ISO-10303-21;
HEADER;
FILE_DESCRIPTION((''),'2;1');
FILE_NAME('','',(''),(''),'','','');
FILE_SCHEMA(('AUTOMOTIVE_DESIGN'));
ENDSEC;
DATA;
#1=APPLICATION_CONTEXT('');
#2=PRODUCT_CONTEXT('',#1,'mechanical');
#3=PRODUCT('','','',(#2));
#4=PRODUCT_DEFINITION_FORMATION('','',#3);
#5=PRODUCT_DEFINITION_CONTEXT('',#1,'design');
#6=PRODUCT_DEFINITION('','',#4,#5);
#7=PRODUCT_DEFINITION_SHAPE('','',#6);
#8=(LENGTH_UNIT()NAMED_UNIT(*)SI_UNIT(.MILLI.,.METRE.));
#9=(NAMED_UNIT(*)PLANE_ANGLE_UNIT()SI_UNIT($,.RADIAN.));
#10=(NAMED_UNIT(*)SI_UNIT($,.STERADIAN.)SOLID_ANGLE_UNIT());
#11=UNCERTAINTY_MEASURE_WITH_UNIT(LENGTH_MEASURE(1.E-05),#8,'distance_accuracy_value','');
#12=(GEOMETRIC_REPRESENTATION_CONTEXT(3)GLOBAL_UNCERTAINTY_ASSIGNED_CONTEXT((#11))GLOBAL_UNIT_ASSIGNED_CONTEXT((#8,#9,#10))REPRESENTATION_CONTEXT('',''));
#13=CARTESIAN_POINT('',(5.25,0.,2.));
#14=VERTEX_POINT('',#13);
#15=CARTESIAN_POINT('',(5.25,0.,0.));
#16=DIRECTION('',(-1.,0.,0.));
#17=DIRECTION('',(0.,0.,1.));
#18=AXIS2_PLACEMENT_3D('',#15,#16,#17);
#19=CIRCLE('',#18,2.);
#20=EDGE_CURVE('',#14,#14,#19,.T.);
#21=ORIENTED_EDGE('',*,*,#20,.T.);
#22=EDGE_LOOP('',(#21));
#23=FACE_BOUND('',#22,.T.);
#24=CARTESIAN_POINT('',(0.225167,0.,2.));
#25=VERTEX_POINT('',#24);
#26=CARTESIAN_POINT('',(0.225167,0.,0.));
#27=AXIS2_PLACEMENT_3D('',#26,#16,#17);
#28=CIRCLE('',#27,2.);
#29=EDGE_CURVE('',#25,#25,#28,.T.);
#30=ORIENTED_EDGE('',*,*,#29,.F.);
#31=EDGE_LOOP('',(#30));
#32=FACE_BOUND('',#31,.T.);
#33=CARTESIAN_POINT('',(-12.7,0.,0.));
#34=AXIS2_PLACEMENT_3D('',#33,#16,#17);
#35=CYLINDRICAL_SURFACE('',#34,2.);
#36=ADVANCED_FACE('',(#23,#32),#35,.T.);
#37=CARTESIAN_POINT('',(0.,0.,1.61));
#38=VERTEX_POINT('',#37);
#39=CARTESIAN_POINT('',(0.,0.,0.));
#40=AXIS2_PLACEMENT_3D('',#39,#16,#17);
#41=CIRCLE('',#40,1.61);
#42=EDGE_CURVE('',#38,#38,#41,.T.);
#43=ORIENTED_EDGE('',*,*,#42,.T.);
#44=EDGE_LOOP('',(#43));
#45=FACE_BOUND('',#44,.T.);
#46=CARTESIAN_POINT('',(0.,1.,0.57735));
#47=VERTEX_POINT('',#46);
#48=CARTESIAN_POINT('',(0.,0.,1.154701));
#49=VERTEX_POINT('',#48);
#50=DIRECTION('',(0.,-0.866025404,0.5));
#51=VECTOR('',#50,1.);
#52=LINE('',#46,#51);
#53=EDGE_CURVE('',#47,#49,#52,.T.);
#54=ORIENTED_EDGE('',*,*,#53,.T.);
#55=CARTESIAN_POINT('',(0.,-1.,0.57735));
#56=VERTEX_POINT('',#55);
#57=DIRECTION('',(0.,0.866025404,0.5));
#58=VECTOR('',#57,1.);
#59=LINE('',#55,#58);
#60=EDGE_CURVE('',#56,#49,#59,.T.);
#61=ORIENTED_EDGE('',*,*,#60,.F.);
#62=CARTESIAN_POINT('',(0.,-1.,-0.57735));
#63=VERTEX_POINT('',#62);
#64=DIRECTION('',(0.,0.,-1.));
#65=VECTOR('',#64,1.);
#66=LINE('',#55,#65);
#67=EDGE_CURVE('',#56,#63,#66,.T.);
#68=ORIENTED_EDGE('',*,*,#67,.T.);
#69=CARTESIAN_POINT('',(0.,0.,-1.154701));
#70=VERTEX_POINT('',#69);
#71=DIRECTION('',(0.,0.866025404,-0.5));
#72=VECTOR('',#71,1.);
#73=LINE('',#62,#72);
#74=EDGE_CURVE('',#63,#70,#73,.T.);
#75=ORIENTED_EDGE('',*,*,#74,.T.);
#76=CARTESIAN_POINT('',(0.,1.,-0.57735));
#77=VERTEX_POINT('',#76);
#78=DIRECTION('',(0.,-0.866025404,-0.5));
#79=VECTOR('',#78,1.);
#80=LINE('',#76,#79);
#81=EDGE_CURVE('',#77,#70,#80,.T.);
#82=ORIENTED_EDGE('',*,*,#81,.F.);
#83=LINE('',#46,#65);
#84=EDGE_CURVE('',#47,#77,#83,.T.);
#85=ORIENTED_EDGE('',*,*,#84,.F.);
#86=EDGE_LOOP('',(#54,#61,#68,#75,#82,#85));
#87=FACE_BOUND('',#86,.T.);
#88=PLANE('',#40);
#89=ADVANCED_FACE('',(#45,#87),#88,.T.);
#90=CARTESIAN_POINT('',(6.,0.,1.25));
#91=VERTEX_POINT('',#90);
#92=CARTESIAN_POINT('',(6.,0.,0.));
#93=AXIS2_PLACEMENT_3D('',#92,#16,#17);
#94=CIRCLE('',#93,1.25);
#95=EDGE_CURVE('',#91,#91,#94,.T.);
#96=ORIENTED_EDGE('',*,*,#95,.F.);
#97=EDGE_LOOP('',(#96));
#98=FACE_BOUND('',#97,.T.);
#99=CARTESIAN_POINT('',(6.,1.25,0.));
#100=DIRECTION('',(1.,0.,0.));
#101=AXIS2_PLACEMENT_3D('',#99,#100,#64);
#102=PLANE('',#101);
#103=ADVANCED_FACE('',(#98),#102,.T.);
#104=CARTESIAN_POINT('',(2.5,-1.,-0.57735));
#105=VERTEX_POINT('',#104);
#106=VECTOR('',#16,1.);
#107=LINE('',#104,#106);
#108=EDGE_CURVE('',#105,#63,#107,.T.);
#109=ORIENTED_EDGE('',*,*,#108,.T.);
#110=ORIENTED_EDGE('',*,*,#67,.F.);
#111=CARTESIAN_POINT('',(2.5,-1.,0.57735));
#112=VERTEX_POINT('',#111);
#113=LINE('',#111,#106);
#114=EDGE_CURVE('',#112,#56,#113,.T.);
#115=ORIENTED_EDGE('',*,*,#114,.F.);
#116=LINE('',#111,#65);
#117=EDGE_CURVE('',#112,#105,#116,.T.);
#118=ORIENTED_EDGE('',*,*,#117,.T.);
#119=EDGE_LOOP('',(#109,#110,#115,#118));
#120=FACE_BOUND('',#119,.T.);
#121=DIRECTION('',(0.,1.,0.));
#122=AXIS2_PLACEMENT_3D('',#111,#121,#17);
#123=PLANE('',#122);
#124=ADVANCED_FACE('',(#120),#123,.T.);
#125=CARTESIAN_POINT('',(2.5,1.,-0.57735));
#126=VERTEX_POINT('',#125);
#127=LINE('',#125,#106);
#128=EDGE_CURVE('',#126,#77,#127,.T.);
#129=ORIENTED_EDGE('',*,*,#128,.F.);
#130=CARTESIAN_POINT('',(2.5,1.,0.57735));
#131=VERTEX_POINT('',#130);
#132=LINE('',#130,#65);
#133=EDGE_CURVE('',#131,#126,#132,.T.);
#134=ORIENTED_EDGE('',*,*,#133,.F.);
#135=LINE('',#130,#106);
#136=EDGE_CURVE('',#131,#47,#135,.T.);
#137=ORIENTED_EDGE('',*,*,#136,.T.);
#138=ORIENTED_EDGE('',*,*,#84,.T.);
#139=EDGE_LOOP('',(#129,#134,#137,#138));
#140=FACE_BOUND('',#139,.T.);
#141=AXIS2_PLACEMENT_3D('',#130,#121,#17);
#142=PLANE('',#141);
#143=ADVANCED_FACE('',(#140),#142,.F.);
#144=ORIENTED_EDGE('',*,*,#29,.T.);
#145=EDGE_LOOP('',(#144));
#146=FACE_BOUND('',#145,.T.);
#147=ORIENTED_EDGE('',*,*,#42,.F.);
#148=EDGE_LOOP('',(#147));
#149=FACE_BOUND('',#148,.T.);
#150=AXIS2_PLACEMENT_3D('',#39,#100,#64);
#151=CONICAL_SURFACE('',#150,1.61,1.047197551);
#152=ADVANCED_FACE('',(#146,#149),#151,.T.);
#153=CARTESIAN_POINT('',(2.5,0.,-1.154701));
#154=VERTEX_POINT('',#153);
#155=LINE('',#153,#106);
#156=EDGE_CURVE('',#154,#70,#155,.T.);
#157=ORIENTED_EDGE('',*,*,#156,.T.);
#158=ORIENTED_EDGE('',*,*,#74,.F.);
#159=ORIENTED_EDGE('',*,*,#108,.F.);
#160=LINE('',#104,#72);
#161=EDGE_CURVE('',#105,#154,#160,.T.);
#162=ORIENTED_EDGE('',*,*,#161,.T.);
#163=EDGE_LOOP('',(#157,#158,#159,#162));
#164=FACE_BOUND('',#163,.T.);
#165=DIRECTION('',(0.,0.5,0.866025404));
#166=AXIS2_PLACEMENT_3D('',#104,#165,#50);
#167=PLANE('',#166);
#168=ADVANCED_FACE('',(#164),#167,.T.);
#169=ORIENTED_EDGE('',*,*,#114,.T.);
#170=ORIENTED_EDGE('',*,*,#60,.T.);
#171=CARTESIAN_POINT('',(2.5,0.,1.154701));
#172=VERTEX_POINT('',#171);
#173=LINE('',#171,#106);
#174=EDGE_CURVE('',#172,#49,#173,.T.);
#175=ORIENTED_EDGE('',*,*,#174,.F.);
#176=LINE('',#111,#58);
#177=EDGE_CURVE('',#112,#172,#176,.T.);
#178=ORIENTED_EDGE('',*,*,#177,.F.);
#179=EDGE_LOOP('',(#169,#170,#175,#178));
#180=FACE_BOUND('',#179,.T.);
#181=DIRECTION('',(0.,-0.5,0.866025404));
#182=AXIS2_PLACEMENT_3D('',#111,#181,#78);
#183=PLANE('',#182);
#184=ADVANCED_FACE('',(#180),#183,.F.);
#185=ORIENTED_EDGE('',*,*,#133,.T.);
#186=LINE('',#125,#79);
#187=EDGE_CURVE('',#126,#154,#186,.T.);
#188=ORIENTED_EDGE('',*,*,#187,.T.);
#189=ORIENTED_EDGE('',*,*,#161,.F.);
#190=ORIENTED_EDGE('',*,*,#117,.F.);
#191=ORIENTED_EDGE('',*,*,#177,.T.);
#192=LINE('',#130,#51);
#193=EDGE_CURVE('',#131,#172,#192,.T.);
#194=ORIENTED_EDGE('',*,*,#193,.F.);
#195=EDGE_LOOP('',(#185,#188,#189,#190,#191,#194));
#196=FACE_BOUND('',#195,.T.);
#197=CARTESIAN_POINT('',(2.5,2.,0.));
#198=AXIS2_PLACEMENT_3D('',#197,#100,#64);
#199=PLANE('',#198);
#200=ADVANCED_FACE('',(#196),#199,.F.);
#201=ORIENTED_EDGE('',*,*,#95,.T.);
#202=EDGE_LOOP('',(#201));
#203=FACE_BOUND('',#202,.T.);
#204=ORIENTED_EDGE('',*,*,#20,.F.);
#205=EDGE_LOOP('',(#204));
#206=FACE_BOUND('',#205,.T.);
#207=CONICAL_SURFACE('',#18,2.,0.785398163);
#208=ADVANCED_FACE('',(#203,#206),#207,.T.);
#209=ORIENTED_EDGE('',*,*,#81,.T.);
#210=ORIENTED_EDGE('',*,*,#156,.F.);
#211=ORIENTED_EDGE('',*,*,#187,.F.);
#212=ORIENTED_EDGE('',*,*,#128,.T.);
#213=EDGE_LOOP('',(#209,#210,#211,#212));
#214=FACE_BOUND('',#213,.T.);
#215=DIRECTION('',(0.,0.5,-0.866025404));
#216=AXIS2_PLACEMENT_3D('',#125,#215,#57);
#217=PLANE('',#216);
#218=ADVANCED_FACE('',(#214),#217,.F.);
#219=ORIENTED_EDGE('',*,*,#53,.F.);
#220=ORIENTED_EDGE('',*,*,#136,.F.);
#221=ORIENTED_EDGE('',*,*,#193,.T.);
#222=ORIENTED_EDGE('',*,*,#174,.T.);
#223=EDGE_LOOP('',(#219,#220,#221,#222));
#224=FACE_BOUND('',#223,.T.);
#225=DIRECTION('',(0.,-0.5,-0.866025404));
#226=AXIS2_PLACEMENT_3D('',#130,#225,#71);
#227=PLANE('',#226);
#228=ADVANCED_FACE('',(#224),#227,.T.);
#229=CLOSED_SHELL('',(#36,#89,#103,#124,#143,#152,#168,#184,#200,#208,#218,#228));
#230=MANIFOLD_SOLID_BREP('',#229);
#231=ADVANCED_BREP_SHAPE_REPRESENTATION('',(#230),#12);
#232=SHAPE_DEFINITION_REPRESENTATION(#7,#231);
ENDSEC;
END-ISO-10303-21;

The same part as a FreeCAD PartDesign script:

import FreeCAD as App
import Part
import Sketcher
from FreeCAD import Vector
Q = App.Units.Quantity

doc = App.newDocument("Part")
params = doc.addObject("Spreadsheet::Sheet", "Params")
for row, (alias, value) in enumerate([
    ("sketch1_width", "6 mm"),
    ("sketch1_height", "1.61 mm"),
    ("sketch1_height2", "1.25 mm"),
    ("revolution_angle", "360 deg"),
    ("pocket1_length", "2.5 mm"),
], start=1):
    params.set(f"A{row}", alias)
    params.set(f"B{row}", "=" + value)
    params.setAlias(f"B{row}", alias)

body = doc.addObject("PartDesign::Body", "Body")

sketch1 = body.newObject("Sketcher::SketchObject", "Sketch")
sketch1.AttachmentSupport = (doc.getObject("XY_Plane"), [""])
sketch1.MapMode = "FlatFace"
sketch1.addGeometry([
    Part.LineSegment(Vector(0, 1.61, 0), Vector(0, 0, 0)),
    Part.LineSegment(Vector(0, 0, 0), Vector(6, 0, 0)),
    Part.LineSegment(Vector(6, 0, 0), Vector(6, 1.25, 0)),
    Part.LineSegment(Vector(6, 1.25, 0), Vector(5.25, 2, 0)),
    Part.LineSegment(Vector(5.25, 2, 0), Vector(0.23, 2, 0)),
    Part.LineSegment(Vector(0.23, 2, 0), Vector(0, 1.61, 0)),
], False)
sketch1.addConstraint([
    Sketcher.Constraint("Coincident", 0, 2, 1, 1),
    Sketcher.Constraint("Coincident", 1, 2, 2, 1),
    Sketcher.Constraint("Coincident", 2, 2, 3, 1),
    Sketcher.Constraint("Coincident", 3, 2, 4, 1),
    Sketcher.Constraint("Coincident", 4, 2, 5, 1),
    Sketcher.Constraint("Coincident", 5, 2, 0, 1),
    Sketcher.Constraint("Vertical", 0),
    Sketcher.Constraint("Horizontal", 1),
    Sketcher.Constraint("Vertical", 2),
    Sketcher.Constraint("Horizontal", 4),
    Sketcher.Constraint("Coincident", 0, 2, -1, 1),
    Sketcher.Constraint("DistanceX", 1, 1, 1, 2, Q("6 mm")),
    Sketcher.Constraint("Angle", 3, Q("135 deg")),
    Sketcher.Constraint("Angle", 5, Q("-120 deg")),
    Sketcher.Constraint("DistanceY", -1, 1, 3, 2, Q("2 mm")),
    Sketcher.Constraint("DistanceY", 0, 2, 0, 1, Q("1.61 mm")),
    Sketcher.Constraint("DistanceY", 2, 1, 2, 2, Q("1.25 mm")),
])
sketch1.setExpression("Constraints[11]", "Params.sketch1_width")
sketch1.setExpression("Constraints[15]", "Params.sketch1_height")
sketch1.setExpression("Constraints[16]", "Params.sketch1_height2")
revolution = body.newObject("PartDesign::Revolution", "Revolution")
revolution.Profile = sketch1
revolution.ReferenceAxis = (sketch1, ["H_Axis"])
revolution.setExpression("Angle", "Params.revolution_angle")

sketch2 = body.newObject("Sketcher::SketchObject", "Sketch001")
sketch2.AttachmentSupport = (doc.getObject("YZ_Plane"), [""])
sketch2.MapMode = "FlatFace"
sketch2.addGeometry([
    Part.LineSegment(Vector(1, 0.6, 0), Vector(1, -0.6, 0)),
    Part.LineSegment(Vector(1, -0.6, 0), Vector(0, -1.2, 0)),
    Part.LineSegment(Vector(0, -1.2, 0), Vector(-1, -0.6, 0)),
    Part.LineSegment(Vector(-1, -0.6, 0), Vector(-1, 0.6, 0)),
    Part.LineSegment(Vector(-1, 0.6, 0), Vector(0, 1.2, 0)),
    Part.LineSegment(Vector(0, 1.2, 0), Vector(1, 0.6, 0)),
], False)
sketch2.addConstraint([
    Sketcher.Constraint("Coincident", 0, 2, 1, 1),
    Sketcher.Constraint("Coincident", 1, 2, 2, 1),
    Sketcher.Constraint("Coincident", 2, 2, 3, 1),
    Sketcher.Constraint("Coincident", 3, 2, 4, 1),
    Sketcher.Constraint("Coincident", 4, 2, 5, 1),
    Sketcher.Constraint("Coincident", 5, 2, 0, 1),
    Sketcher.Constraint("Vertical", 0),
    Sketcher.Constraint("Vertical", 3),
    Sketcher.Constraint("Symmetric", 0, 2, 3, 2, -1, 1),
    Sketcher.Constraint("Symmetric", 1, 2, 4, 2, -1, 1),
    Sketcher.Constraint("PointOnObject", 1, 2, -2),
    Sketcher.Constraint("Parallel", 2, 5),
    Sketcher.Constraint("Horizontal", 0, 2, 2, 2),
    Sketcher.Constraint("Angle", 1, Q("-150 deg")),
    Sketcher.Constraint("DistanceX", -1, 1, 0, 2, Q("1 mm")),
    Sketcher.Constraint("DistanceY", 0, 2, 0, 1, Q("1.154701 mm")),
])
pocket1 = body.newObject("PartDesign::Pocket", "Pocket")
pocket1.Profile = sketch2
pocket1.setExpression("Length", "Params.pocket1_length")
pocket1.Reversed = True

doc.recompute()
